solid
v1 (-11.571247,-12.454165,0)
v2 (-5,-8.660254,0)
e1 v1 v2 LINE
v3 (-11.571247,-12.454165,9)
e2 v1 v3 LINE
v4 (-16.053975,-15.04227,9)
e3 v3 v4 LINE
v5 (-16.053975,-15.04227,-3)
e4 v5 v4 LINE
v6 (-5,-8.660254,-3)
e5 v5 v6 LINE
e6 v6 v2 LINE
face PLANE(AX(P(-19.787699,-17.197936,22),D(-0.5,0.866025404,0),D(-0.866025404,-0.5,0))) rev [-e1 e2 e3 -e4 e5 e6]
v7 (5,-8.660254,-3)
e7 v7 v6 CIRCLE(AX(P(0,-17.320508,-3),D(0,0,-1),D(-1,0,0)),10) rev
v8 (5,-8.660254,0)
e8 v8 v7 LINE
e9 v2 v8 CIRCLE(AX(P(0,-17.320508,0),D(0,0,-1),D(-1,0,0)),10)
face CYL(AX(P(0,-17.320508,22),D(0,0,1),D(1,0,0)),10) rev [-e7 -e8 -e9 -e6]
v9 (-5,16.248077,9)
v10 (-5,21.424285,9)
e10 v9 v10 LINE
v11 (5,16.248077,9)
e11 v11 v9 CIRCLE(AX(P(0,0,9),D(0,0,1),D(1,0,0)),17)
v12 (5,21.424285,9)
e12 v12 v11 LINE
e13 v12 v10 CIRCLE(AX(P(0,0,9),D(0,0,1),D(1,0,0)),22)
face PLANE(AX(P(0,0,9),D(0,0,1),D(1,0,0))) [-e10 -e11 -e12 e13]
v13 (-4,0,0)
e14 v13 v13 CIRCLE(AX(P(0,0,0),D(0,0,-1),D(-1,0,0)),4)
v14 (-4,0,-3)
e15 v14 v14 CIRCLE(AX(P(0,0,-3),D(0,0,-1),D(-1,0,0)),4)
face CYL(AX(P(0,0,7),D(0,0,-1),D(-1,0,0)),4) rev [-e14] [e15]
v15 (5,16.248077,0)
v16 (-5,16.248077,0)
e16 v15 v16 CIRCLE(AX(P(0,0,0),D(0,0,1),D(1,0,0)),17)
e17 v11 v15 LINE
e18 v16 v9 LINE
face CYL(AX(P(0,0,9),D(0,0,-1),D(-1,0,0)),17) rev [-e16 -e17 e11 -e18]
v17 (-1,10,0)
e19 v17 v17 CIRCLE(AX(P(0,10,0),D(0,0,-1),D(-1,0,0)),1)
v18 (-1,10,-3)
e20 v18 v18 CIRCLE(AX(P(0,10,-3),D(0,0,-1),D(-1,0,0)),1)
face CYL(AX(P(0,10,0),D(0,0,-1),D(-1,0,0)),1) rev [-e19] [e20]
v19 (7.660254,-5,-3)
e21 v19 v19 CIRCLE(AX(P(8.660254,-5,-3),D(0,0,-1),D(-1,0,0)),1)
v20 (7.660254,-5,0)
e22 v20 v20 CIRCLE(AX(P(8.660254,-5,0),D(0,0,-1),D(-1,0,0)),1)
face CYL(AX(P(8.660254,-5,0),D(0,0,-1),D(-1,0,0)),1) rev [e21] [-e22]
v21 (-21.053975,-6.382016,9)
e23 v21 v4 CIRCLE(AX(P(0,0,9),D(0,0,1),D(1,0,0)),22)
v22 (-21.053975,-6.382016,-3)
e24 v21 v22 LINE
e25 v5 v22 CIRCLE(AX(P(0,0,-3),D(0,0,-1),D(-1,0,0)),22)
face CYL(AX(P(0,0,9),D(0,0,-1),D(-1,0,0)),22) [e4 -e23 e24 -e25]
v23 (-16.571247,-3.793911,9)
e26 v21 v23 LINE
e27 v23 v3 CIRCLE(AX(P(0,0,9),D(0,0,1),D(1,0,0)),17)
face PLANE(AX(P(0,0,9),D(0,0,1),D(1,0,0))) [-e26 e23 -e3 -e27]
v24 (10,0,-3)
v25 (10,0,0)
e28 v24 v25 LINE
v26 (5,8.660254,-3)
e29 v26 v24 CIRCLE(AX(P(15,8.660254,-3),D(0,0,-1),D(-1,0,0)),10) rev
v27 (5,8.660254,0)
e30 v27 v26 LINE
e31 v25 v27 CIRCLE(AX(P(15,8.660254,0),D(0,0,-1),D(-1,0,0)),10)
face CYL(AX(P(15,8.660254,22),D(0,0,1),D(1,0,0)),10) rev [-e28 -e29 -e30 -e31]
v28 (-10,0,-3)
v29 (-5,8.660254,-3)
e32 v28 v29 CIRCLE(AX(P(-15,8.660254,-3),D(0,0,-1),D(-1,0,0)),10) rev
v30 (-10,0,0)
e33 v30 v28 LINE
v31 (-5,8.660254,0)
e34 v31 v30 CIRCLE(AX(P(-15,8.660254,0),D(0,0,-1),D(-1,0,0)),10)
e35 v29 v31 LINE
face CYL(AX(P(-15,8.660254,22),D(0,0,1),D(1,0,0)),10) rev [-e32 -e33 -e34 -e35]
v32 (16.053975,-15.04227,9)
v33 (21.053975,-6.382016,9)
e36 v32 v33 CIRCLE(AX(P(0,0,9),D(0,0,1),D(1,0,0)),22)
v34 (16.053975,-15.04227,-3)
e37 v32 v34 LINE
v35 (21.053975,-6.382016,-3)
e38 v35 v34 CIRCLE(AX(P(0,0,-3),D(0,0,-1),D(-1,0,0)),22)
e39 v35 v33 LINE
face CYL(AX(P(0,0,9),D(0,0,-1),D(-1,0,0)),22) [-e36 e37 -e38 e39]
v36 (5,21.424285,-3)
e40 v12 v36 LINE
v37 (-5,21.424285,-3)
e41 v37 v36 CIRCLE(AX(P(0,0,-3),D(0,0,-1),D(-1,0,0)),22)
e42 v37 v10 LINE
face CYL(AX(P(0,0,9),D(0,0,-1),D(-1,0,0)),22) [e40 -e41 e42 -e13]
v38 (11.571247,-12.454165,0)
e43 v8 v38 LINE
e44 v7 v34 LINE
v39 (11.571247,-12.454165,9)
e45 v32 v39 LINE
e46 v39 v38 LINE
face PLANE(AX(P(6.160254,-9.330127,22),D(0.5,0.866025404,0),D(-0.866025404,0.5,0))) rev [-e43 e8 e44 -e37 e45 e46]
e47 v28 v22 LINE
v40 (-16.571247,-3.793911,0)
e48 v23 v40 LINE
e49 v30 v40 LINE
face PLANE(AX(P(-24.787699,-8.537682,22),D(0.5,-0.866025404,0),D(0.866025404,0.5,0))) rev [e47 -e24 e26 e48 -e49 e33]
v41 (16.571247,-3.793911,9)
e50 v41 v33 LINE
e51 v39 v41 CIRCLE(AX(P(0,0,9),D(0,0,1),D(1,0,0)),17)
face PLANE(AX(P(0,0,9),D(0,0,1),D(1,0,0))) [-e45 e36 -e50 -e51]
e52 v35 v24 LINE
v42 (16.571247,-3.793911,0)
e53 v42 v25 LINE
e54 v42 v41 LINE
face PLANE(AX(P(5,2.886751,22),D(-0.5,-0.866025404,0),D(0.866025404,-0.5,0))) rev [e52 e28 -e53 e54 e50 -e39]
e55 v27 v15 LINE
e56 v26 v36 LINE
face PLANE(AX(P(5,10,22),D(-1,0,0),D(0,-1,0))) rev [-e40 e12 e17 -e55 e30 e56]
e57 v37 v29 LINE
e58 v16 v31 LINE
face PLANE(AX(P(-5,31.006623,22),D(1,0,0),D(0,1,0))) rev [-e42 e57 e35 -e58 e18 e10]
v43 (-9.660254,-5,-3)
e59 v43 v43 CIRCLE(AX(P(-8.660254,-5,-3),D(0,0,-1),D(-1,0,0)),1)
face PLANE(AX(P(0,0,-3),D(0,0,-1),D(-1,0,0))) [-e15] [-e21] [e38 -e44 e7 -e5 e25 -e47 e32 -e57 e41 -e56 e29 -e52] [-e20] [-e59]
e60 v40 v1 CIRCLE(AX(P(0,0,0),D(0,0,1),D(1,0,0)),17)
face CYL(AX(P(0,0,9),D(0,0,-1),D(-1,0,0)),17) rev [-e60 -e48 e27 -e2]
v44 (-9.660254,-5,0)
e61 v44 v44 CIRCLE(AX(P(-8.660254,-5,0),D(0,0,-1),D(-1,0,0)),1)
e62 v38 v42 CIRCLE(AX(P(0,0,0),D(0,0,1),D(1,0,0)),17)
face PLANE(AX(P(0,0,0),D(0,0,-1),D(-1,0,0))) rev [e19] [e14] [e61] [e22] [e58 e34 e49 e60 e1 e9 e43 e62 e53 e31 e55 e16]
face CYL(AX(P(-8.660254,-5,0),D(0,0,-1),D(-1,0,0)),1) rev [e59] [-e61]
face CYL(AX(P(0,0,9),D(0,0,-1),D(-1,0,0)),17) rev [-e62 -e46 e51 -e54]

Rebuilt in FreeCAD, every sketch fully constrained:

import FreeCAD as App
import Part
import Sketcher
Q = App.Units.Quantity


def edges_at(feature, points):
    """Names of the edges that pass closest to the given points."""
    edges = feature.Shape.Edges
    near = lambda p: min(range(len(edges)), key=lambda i: edges[i].distToShape(Part.Vertex(*p))[0])
    return sorted({f"Edge{near(p) + 1}" for p in points})


def add_polygon(sketch, points):
    """Adds a closed chain of lines whose ends are joined by coincident constraints."""
    first, n = sketch.GeometryCount, len(points)
    for a, b in zip(points, points[1:] + points[:1]):
        sketch.addGeometry(Part.LineSegment(App.Vector(*a, 0), App.Vector(*b, 0)), False)
    for i in range(n):
        sketch.addConstraint(Sketcher.Constraint("Coincident", first + i, 2, first + (i + 1) % n, 1))

doc = App.newDocument("Part")
params = doc.addObject("Spreadsheet::Sheet", "Params")
for row, (alias, value) in enumerate([
    ("sketch1_diameter", "44 mm"),
    ("sketch1_diameter2", "34 mm"),
    ("pad1_length", "9 mm"),
    ("sketch2_diameter", "44 mm"),
    ("pad2_length", "3 mm"),
    ("sketch3_diameter", "2 mm"),
    ("pocket1_length", "3 mm"),
    ("pocket2_length", "25 mm"),
    ("sketch5_diameter", "8 mm"),
    ("pocket3_length", "10 mm"),
    ("fillet_radius", "10 mm"),
    ("fillet2_radius", "10 mm"),
], start=1):
    params.set(f"A{row}", alias)
    params.set(f"B{row}", "=" + value)
    params.setAlias(f"B{row}", alias)

body = doc.addObject("PartDesign::Body", "Body")

# Sketch on XY plane
sketch1 = doc.addObject("Sketcher::SketchObject", "Sketch")
body.addObject(sketch1)
sketch1.AttachmentSupport = (doc.XY_Plane, [""])
sketch1.MapMode = "FlatFace"
sketch1.addGeometry([
    Part.Circle(App.Vector(0, 0, 0), App.Vector(0, 0, 1), 22),
    Part.Circle(App.Vector(0, 0, 0), App.Vector(0, 0, 1), 17),
], False)
sketch1.addConstraint([
    Sketcher.Constraint("Coincident", 0, 3, -1, 1),
    Sketcher.Constraint("Coincident", 1, 3, -1, 1),
    Sketcher.Constraint("Diameter", 0, 44.0),
    Sketcher.Constraint("Diameter", 1, 34.0),
])
sketch1.setExpression("Constraints[2]", "Params.sketch1_diameter")
sketch1.setExpression("Constraints[3]", "Params.sketch1_diameter2")
pad1 = doc.addObject("PartDesign::Pad", "Pad")
body.addObject(pad1)
pad1.Profile = sketch1
pad1.setExpression("Length", "Params.pad1_length")

# Sketch on XY plane
sketch2 = doc.addObject("Sketcher::SketchObject", "Sketch001")
body.addObject(sketch2)
sketch2.AttachmentSupport = (doc.XY_Plane, [""])
sketch2.MapMode = "FlatFace"
sketch2.addGeometry(Part.Circle(App.Vector(0, 0, 0), App.Vector(0, 0, 1), 22), False)
sketch2.addConstraint([
    Sketcher.Constraint("Coincident", 0, 3, -1, 1),
    Sketcher.Constraint("Diameter", 0, 44.0),
])
sketch2.setExpression("Constraints[1]", "Params.sketch2_diameter")
pad2 = doc.addObject("PartDesign::Pad", "Pad001")
body.addObject(pad2)
pad2.Profile = sketch2
pad2.setExpression("Length", "Params.pad2_length")
pad2.Reversed = True

# Sketch on XY plane
sketch3 = doc.addObject("Sketcher::SketchObject", "Sketch002")
body.addObject(sketch3)
sketch3.AttachmentSupport = (doc.XY_Plane, [""])
sketch3.MapMode = "FlatFace"
sketch3.AttachmentOffset = App.Placement(App.Vector(0, 0, -3), App.Rotation())
sketch3.addGeometry([
    Part.Circle(App.Vector(0, 10, 0), App.Vector(0, 0, 1), 1),
    Part.Circle(App.Vector(-8.7, -5, 0), App.Vector(0, 0, 1), 1),
    Part.Circle(App.Vector(8.7, -5, 0), App.Vector(0, 0, 1), 1),
], False)
sketch3.addConstraint([
    Sketcher.Constraint("Equal", 0, 1),
    Sketcher.Constraint("Equal", 1, 2),
    Sketcher.Constraint("Symmetric", 1, 3, 2, 3, -2),
    Sketcher.Constraint("PointOnObject", 0, 3, -2),
    Sketcher.Constraint("Diameter", 0, 2.0),
    Sketcher.Constraint("DistanceY", -1, 1, 0, 3, 10.0),
    Sketcher.Constraint("DistanceY", 1, 3, -1, 1, 5.0),
    Sketcher.Constraint("DistanceX", 1, 3, 2, 3, 17.320508),
])
sketch3.setExpression("Constraints[4]", "Params.sketch3_diameter")
pocket1 = doc.addObject("PartDesign::Pocket", "Pocket")
body.addObject(pocket1)
pocket1.Profile = sketch3
pocket1.setExpression("Length", "Params.pocket1_length")
pocket1.Reversed = True

# Sketch on XY plane
sketch4 = doc.addObject("Sketcher::SketchObject", "Sketch003")
body.addObject(sketch4)
sketch4.AttachmentSupport = (doc.XY_Plane, [""])
sketch4.MapMode = "FlatFace"
sketch4.AttachmentOffset = App.Placement(App.Vector(0, 0, -3), App.Rotation())
add_polygon(sketch4, [(-5, 3), (-25, -9), (-29, 20), (-5, 31)])  # lines 0-3
add_polygon(sketch4, [(0, -6), (6, -9), (24, -20), (4, -32), (-20, -17)])  # lines 4-8
add_polygon(sketch4, [(5, 3), (5, 31), (28, 27), (29, -11)])  # lines 9-12
sketch4.addConstraint([
    Sketcher.Constraint("Vertical", 3),
    Sketcher.Constraint("Vertical", 9),
    Sketcher.Constraint("Symmetric", 2, 2, 9, 2, -2),
    Sketcher.Constraint("PointOnObject", 8, 2, -2),
    Sketcher.Constraint("Parallel", 4, 5),
    Sketcher.Constraint("Parallel", 0, 8),
    Sketcher.Constraint("Parallel", 5, 12),
    Sketcher.Constraint("Horizontal", 3, 2, 12, 2),
    Sketcher.Constraint("Equal", 0, 8),
    Sketcher.Constraint("Angle", 0, Q("-150 deg")),
    Sketcher.Constraint("Angle", 4, Q("-30 deg")),
    Sketcher.Constraint("DistanceX", 2, 2, -1, 1, 5.0),
    Sketcher.Constraint("DistanceX", 5, 2, 11, 2, 5.0),
    Sketcher.Constraint("DistanceY", 3, 2, 3, 1, 28.119871),
    Sketcher.Constraint("DistanceX", 0, 2, -1, 1, 24.787699),
    Sketcher.Constraint("DistanceY", 6, 2, 0, 2, 23.8984),
    Sketcher.Constraint("Distance", 1, 28.338539),
    Sketcher.Constraint("Distance", 2, 26.23322),
    Sketcher.Constraint("Distance", 4, 7.113249),
    Sketcher.Constraint("DistanceY", -1, 1, 1, 2, 19.543761),
    Sketcher.Constraint("DistanceY", 5, 2, -1, 1, 19.57376),
    Sketcher.Constraint("DistanceX", -1, 1, 6, 2, 4.03508),
    Sketcher.Constraint("DistanceY", 4, 2, 3, 2, 12.216878),
    Sketcher.Constraint("DistanceX", 4, 2, 10, 2, 21.477831),
    Sketcher.Constraint("DistanceY", 8, 2, 10, 2, 32.944128),
])
pocket2 = doc.addObject("PartDesign::Pocket", "Pocket001")
body.addObject(pocket2)
pocket2.Profile = sketch4
pocket2.setExpression("Length", "Params.pocket2_length")
pocket2.Reversed = True

# Sketch on XY plane
sketch5 = doc.addObject("Sketcher::SketchObject", "Sketch004")
body.addObject(sketch5)
sketch5.AttachmentSupport = (doc.XY_Plane, [""])
sketch5.MapMode = "FlatFace"
sketch5.AttachmentOffset = App.Placement(App.Vector(0, 0, -3), App.Rotation())
sketch5.addGeometry(Part.Circle(App.Vector(0, 0, 0), App.Vector(0, 0, 1), 4), False)
sketch5.addConstraint([
    Sketcher.Constraint("Coincident", 0, 3, -1, 1),
    Sketcher.Constraint("Diameter", 0, 8.0),
])
sketch5.setExpression("Constraints[1]", "Params.sketch5_diameter")
pocket3 = doc.addObject("PartDesign::Pocket", "Pocket002")
body.addObject(pocket3)
pocket3.Profile = sketch5
pocket3.setExpression("Length", "Params.pocket3_length")
pocket3.Reversed = True
doc.recompute()

fillet = doc.addObject("PartDesign::Fillet", "Fillet")
body.addObject(fillet)
fillet.Base = (pocket3, edges_at(pocket3, [(-5, 2.887, -1.5)]))
fillet.setExpression("Radius", "Params.fillet_radius")
doc.recompute()

fillet2 = doc.addObject("PartDesign::Fillet", "Fillet001")
body.addObject(fillet2)
fillet2.Base = (fillet, edges_at(fillet, [(5, 2.887, -1.5), (0, -5.774, -1.5)]))
fillet2.setExpression("Radius", "Params.fillet2_radius")

doc.recompute()
